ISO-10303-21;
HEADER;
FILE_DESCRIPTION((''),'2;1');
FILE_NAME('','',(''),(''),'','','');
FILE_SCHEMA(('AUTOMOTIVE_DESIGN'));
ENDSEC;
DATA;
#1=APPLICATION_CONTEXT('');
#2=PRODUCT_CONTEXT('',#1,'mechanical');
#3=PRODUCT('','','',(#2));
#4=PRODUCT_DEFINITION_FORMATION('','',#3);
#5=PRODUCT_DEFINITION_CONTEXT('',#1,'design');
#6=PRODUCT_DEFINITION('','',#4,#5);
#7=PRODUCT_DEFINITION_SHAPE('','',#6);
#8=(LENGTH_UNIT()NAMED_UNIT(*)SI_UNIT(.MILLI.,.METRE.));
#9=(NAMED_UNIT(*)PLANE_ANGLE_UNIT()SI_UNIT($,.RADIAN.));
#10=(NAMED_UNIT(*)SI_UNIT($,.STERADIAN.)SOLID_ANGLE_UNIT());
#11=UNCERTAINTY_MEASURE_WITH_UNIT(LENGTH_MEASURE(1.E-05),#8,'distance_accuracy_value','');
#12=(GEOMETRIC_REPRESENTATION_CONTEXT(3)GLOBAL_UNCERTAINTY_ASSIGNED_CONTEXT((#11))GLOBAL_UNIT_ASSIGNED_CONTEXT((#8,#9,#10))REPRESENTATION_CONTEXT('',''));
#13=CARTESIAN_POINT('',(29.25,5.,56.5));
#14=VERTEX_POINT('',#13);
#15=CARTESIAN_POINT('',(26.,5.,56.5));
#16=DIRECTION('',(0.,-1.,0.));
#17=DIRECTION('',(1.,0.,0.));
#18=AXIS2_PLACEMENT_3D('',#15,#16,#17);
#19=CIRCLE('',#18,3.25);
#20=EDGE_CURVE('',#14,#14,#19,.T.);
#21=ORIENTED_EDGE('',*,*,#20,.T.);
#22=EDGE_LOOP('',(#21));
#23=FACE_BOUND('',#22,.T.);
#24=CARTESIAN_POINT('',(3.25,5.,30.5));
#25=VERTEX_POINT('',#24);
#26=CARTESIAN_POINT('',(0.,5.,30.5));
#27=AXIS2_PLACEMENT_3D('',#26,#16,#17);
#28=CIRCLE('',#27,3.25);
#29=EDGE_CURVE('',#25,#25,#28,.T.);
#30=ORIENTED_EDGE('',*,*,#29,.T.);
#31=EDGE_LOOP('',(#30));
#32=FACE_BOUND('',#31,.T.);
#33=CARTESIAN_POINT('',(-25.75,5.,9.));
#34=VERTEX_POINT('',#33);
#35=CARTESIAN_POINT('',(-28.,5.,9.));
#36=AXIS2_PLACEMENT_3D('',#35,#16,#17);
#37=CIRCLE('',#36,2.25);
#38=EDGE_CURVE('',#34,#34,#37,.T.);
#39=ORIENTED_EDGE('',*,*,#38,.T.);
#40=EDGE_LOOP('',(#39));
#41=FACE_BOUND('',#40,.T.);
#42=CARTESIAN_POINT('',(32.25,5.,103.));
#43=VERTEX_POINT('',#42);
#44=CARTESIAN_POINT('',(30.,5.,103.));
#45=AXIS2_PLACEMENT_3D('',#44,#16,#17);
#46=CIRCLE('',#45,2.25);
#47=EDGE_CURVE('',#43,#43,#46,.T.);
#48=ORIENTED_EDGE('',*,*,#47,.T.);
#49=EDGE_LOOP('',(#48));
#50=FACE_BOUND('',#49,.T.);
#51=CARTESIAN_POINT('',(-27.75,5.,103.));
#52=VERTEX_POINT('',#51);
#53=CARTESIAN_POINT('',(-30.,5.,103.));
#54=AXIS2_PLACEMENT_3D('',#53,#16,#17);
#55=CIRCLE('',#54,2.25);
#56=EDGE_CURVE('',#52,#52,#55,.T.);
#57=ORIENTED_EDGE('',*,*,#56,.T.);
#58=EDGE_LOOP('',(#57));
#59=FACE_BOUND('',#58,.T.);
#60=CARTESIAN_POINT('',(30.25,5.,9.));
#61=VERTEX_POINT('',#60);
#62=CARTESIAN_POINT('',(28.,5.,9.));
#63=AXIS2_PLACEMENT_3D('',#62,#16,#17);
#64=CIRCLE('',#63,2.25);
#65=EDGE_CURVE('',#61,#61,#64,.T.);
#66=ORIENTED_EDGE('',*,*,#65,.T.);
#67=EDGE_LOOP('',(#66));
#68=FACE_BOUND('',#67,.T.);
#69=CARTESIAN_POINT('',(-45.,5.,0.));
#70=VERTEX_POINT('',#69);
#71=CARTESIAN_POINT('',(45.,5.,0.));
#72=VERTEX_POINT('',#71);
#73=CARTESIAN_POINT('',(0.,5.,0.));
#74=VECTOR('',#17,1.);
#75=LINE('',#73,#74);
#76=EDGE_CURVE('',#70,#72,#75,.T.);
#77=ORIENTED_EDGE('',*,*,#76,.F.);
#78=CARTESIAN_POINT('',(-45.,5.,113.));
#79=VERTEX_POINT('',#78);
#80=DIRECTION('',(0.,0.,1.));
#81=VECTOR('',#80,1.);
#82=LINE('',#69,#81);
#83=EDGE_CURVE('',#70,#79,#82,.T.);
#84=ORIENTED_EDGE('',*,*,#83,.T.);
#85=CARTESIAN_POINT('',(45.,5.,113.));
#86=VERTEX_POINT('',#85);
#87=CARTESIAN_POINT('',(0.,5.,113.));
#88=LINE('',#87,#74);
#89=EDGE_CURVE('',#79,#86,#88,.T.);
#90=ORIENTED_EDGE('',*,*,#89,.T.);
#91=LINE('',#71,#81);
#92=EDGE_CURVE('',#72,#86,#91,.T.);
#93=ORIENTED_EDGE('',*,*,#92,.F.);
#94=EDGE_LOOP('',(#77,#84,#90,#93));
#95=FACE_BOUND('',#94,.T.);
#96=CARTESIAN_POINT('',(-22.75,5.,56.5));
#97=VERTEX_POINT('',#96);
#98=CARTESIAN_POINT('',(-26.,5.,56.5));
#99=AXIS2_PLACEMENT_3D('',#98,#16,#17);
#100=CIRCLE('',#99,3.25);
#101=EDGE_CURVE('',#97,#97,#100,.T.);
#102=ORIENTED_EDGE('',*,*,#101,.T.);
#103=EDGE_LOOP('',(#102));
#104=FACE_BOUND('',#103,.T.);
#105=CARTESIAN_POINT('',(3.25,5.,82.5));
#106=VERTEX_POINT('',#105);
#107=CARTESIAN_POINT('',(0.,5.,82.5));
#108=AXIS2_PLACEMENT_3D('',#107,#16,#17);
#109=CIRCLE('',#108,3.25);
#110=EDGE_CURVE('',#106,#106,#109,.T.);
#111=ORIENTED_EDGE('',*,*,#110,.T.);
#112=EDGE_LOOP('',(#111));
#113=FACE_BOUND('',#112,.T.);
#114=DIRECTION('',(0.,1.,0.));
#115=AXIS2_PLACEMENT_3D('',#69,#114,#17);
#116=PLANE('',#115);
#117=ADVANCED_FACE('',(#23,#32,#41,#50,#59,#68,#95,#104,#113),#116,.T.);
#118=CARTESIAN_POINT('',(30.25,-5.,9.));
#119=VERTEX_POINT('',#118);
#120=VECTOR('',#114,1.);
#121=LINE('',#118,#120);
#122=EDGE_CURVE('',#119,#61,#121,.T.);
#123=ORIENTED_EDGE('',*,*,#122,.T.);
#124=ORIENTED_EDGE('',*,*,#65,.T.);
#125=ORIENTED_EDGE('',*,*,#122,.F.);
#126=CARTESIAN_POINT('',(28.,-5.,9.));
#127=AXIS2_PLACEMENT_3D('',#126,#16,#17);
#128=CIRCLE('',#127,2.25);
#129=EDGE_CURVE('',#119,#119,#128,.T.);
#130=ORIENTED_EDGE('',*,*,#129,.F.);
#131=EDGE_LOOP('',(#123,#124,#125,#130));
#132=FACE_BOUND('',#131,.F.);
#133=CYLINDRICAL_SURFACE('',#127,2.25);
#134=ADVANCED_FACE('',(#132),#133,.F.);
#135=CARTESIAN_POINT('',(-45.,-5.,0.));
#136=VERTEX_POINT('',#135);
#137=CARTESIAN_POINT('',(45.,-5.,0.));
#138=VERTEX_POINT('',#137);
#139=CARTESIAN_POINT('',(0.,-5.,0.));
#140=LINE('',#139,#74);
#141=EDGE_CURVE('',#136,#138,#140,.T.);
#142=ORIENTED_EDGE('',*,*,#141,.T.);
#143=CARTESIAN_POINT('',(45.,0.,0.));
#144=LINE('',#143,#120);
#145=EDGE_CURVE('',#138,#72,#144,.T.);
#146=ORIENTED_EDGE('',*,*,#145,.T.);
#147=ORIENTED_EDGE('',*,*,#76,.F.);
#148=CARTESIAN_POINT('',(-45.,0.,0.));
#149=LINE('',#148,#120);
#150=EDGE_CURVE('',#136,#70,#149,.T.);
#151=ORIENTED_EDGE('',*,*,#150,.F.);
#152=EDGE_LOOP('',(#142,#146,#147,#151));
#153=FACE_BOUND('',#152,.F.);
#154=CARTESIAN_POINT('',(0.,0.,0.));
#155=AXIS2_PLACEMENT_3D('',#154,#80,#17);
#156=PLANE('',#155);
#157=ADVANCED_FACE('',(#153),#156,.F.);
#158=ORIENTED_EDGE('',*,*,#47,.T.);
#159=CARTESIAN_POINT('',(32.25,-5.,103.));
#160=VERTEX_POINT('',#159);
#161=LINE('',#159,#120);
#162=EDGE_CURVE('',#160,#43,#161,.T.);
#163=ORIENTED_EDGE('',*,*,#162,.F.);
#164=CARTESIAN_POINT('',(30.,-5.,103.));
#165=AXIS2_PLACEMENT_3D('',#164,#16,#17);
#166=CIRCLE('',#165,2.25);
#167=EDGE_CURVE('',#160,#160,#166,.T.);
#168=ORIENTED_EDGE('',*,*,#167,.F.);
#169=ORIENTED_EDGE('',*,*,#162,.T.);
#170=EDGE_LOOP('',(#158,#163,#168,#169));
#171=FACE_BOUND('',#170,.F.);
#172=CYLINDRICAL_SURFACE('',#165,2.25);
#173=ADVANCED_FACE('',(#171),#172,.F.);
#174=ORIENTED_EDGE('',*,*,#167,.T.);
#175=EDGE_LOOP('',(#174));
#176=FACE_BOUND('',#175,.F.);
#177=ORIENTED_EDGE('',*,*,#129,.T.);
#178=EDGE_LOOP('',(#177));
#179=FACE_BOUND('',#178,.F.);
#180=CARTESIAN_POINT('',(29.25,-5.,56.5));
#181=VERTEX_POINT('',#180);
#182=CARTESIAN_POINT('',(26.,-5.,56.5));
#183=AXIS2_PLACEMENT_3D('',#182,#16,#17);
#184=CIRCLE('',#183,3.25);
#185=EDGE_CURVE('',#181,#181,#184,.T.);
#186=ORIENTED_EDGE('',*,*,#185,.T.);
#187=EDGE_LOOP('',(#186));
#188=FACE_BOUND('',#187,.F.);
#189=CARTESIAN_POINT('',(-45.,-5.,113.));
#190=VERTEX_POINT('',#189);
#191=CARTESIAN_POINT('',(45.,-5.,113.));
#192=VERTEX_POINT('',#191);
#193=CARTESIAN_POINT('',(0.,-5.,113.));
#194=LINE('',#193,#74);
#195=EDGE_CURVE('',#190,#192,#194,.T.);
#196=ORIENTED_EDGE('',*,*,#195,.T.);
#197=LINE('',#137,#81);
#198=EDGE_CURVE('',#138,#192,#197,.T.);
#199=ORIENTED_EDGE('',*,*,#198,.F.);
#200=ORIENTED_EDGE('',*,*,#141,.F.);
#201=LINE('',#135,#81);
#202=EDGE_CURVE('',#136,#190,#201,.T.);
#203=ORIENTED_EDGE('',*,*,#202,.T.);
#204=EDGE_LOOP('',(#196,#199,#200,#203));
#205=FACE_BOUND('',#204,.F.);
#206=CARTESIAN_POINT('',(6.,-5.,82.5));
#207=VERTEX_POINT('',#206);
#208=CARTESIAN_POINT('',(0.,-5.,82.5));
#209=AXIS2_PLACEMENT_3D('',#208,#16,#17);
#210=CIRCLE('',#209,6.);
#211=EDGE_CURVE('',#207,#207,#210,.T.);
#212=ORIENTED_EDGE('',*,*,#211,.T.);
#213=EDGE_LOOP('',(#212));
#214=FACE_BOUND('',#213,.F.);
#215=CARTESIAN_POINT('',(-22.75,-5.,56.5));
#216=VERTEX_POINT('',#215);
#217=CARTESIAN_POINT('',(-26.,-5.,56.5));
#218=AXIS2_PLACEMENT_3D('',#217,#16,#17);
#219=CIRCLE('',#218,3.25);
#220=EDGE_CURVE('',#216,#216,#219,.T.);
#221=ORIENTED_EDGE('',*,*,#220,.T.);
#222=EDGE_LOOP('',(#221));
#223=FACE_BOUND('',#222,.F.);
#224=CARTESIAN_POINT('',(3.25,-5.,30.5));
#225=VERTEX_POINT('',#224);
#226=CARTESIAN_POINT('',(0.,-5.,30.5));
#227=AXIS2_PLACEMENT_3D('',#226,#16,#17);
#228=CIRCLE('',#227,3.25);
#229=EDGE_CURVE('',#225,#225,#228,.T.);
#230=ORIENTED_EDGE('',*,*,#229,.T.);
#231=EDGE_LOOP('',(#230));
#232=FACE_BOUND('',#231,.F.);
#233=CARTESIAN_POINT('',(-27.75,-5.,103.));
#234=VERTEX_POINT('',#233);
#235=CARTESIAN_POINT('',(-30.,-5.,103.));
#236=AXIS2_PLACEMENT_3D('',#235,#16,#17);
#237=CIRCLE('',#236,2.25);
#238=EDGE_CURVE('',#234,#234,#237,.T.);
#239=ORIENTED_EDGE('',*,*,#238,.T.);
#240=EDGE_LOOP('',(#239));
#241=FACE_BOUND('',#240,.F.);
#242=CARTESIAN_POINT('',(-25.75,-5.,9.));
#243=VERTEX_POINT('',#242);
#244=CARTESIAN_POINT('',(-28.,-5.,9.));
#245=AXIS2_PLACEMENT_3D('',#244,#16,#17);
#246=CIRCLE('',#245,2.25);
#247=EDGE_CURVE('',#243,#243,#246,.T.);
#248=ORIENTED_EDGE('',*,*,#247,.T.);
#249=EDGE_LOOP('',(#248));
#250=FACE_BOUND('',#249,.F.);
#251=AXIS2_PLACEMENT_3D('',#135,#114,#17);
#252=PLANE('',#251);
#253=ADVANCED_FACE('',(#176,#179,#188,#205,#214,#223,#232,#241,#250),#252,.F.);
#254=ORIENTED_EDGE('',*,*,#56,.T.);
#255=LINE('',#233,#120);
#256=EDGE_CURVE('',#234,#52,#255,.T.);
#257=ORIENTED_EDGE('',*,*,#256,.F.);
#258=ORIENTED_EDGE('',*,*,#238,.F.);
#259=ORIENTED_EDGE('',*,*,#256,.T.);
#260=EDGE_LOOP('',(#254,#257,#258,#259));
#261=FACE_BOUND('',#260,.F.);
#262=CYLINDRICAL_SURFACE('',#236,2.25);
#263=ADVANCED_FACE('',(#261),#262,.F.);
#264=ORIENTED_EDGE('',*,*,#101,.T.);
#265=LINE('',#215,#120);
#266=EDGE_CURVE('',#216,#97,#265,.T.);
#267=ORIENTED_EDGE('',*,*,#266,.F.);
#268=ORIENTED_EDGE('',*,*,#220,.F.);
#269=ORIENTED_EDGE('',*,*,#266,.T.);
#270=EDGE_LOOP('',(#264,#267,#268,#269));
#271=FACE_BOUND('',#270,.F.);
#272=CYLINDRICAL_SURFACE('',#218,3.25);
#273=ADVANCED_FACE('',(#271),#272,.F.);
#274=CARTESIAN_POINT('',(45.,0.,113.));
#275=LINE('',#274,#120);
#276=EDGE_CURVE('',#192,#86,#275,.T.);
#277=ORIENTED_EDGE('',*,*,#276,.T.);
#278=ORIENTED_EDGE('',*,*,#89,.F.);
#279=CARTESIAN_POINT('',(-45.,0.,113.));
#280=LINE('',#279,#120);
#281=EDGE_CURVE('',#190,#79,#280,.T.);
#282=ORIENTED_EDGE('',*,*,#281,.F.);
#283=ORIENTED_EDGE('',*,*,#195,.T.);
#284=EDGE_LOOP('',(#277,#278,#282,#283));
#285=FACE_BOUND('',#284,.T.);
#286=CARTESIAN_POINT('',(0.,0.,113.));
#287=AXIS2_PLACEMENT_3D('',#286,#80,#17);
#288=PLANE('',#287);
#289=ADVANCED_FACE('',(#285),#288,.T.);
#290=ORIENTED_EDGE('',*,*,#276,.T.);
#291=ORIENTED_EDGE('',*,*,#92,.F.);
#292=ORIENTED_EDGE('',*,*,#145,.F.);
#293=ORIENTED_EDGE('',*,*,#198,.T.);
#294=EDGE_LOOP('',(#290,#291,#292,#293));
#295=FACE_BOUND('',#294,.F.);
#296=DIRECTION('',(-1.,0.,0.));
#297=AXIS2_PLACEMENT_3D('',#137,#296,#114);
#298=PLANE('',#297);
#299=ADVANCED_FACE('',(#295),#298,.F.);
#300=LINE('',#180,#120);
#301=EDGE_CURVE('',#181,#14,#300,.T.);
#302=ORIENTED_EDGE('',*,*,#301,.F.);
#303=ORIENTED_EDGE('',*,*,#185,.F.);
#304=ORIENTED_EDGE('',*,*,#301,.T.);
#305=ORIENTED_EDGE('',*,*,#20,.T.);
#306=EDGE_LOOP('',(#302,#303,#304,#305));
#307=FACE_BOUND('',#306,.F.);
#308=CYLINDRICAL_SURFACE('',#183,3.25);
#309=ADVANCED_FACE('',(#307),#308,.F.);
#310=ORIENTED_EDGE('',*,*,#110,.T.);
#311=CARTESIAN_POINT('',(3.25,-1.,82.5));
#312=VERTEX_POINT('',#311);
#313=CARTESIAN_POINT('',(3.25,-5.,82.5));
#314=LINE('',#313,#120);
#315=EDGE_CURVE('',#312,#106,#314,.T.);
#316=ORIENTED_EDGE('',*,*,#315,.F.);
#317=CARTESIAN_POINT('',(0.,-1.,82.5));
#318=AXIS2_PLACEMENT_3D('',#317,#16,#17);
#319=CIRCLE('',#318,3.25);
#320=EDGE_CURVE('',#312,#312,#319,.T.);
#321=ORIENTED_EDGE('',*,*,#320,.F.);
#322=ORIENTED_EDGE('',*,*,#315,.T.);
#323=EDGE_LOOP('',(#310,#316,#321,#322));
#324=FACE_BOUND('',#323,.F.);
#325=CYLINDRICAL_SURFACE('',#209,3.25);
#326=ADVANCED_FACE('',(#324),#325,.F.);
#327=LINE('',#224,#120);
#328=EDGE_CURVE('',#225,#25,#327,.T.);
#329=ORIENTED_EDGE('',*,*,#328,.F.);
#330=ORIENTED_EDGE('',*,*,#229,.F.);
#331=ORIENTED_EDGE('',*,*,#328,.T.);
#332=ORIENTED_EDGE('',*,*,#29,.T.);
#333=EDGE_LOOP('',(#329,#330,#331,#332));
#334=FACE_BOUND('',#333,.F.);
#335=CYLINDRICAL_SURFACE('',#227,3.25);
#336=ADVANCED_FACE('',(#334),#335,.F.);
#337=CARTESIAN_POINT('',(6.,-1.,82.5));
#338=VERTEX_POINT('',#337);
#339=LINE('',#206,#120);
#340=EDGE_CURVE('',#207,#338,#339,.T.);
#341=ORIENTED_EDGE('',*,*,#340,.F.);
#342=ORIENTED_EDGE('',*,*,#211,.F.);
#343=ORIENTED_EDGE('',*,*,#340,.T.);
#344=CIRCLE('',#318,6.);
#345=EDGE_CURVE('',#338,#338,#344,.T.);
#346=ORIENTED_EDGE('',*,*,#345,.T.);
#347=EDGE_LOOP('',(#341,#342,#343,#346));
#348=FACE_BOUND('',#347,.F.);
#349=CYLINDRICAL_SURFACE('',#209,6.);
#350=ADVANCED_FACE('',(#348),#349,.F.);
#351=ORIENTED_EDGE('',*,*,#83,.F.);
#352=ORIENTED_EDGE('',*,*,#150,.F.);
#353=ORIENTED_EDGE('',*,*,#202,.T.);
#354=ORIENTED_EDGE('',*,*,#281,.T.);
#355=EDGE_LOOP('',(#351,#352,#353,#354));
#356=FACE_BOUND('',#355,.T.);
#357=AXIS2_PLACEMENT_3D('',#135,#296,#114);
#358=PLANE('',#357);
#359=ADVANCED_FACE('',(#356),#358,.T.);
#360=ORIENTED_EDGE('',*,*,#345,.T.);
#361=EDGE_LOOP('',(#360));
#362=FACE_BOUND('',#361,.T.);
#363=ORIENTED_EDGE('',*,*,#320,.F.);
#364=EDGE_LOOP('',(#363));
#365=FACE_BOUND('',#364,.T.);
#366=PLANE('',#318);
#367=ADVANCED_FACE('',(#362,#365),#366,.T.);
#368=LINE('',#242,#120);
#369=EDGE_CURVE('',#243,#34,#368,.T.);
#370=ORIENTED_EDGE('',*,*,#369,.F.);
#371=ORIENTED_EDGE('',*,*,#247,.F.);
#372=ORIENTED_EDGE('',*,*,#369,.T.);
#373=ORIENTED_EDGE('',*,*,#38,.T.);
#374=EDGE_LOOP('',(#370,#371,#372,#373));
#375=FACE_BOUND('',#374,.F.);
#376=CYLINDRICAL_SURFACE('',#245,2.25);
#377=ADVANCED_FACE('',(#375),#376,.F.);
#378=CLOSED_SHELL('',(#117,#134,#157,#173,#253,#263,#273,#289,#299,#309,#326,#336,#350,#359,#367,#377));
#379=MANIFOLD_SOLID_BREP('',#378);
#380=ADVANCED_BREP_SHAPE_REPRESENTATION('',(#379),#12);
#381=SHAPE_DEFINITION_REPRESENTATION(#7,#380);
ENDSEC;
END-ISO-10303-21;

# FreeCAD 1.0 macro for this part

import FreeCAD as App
import Part
import Sketcher

doc = App.newDocument("Part")
params = doc.addObject("Spreadsheet::Sheet", "Params")
for row, (alias, value) in enumerate([
    ("sketch1_width", "90 mm"),
    ("sketch1_height", "10 mm"),
    ("pad1_length", "113 mm"),
    ("sketch2_diameter", "4.5 mm"),
    ("sketch2_diameter2", "6.5 mm"),
    ("sketch3_diameter", "12 mm"),
    ("pocket2_length", "4 mm"),
], start=1):
    params.set(f"A{row}", alias)
    params.set(f"B{row}", "=" + value)
    params.setAlias(f"B{row}", alias)

body = doc.addObject("PartDesign::Body", "Body")

# Sketch on XY plane
sketch1 = doc.addObject("Sketcher::SketchObject", "Sketch")
body.addObject(sketch1)
sketch1.AttachmentSupport = (doc.XY_Plane, [""])
sketch1.MapMode = "FlatFace"
sketch1.addGeometry([
    Part.LineSegment(App.Vector(-45, 5, 0), App.Vector(-45, -5, 0)),
    Part.LineSegment(App.Vector(-45, -5, 0), App.Vector(45, -5, 0)),
    Part.LineSegment(App.Vector(45, -5, 0), App.Vector(45, 5, 0)),
    Part.LineSegment(App.Vector(45, 5, 0), App.Vector(-45, 5, 0)),
], False)
sketch1.addConstraint([
    Sketcher.Constraint("Coincident", 0, 2, 1, 1),
    Sketcher.Constraint("Coincident", 1, 2, 2, 1),
    Sketcher.Constraint("Coincident", 2, 2, 3, 1),
    Sketcher.Constraint("Coincident", 3, 2, 0, 1),
    Sketcher.Constraint("Vertical", 0),
    Sketcher.Constraint("Horizontal", 1),
    Sketcher.Constraint("Vertical", 2),
    Sketcher.Constraint("Horizontal", 3),
    Sketcher.Constraint("Symmetric", 0, 2, 2, 2, -1, 1),
    Sketcher.Constraint("DistanceX", 1, 1, 1, 2, 90.0),
    Sketcher.Constraint("DistanceY", 0, 2, 0, 1, 10.0),
])
sketch1.setExpression("Constraints[9]", "Params.sketch1_width")
sketch1.setExpression("Constraints[10]", "Params.sketch1_height")
pad1 = doc.addObject("PartDesign::Pad", "Pad")
body.addObject(pad1)
pad1.Profile = sketch1
pad1.setExpression("Length", "Params.pad1_length")

# Sketch on XZ plane
sketch2 = doc.addObject("Sketcher::SketchObject", "Sketch001")
body.addObject(sketch2)
sketch2.AttachmentSupport = (doc.XZ_Plane, [""])
sketch2.MapMode = "FlatFace"
sketch2.AttachmentOffset = App.Placement(App.Vector(0, 0, 5), App.Rotation())
sketch2.addGeometry([
    Part.Circle(App.Vector(-30, 103, 0), App.Vector(0, 0, 1), 2.25),  # 0
    Part.Circle(App.Vector(30, 103, 0), App.Vector(0, 0, 1), 2.25),  # 1
    Part.Circle(App.Vector(28, 9, 0), App.Vector(0, 0, 1), 2.25),  # 2
    Part.Circle(App.Vector(-28, 9, 0), App.Vector(0, 0, 1), 2.25),  # 3
    Part.Circle(App.Vector(0, 82.5, 0), App.Vector(0, 0, 1), 3.25),  # 4
    Part.Circle(App.Vector(0, 30.5, 0), App.Vector(0, 0, 1), 3.25),  # 5
    Part.Circle(App.Vector(26, 56.5, 0), App.Vector(0, 0, 1), 3.25),  # 6
    Part.Circle(App.Vector(-26, 56.5, 0), App.Vector(0, 0, 1), 3.25),  # 7
], False)
sketch2.addConstraint([
    Sketcher.Constraint("Equal", 0, 1),
    Sketcher.Constraint("Equal", 1, 2),
    Sketcher.Constraint("Equal", 2, 3),
    Sketcher.Constraint("Equal", 4, 5),
    Sketcher.Constraint("Equal", 5, 6),
    Sketcher.Constraint("Equal", 6, 7),
    Sketcher.Constraint("Symmetric", 0, 3, 1, 3, -2),
    Sketcher.Constraint("Symmetric", 2, 3, 3, 3, -2),
    Sketcher.Constraint("Symmetric", 6, 3, 7, 3, -2),
    Sketcher.Constraint("PointOnObject", 4, 3, -2),
    Sketcher.Constraint("PointOnObject", 5, 3, -2),
    Sketcher.Constraint("Diameter", 0, 4.5),
    Sketcher.Constraint("Diameter", 4, 6.5),
    Sketcher.Constraint("DistanceX", 0, 3, -1, 1, 30.0),
    Sketcher.Constraint("DistanceY", -1, 1, 0, 3, 103.0),
    Sketcher.Constraint("DistanceX", -1, 1, 2, 3, 28.0),
    Sketcher.Constraint("DistanceY", -1, 1, 2, 3, 9.0),
    Sketcher.Constraint("DistanceX", -1, 1, 6, 3, 26.0),
    Sketcher.Constraint("DistanceY", 5, 3, 4, 3, 52.0),
    Sketcher.Constraint("DistanceY", 6, 3, 4, 3, 26.0),
    Sketcher.Constraint("DistanceY", -1, 1, 4, 3, 82.5),
])
sketch2.setExpression("Constraints[11]", "Params.sketch2_diameter")
sketch2.setExpression("Constraints[12]", "Params.sketch2_diameter2")
pocket1 = doc.addObject("PartDesign::Pocket", "Pocket")
body.addObject(pocket1)
pocket1.Profile = sketch2
pocket1.Type = "ThroughAll"

# Sketch on XZ plane
sketch3 = doc.addObject("Sketcher::SketchObject", "Sketch002")
body.addObject(sketch3)
sketch3.AttachmentSupport = (doc.XZ_Plane, [""])
sketch3.MapMode = "FlatFace"
sketch3.AttachmentOffset = App.Placement(App.Vector(0, 0, 5), App.Rotation())
sketch3.addGeometry(Part.Circle(App.Vector(0, 82.5, 0), App.Vector(0, 0, 1), 6), False)
sketch3.addConstraint([
    Sketcher.Constraint("PointOnObject", 0, 3, -2),
    Sketcher.Constraint("Diameter", 0, 12.0),
    Sketcher.Constraint("DistanceY", -1, 1, 0, 3, 82.5),
])
sketch3.setExpression("Constraints[1]", "Params.sketch3_diameter")
pocket2 = doc.addObject("PartDesign::Pocket", "Pocket001")
body.addObject(pocket2)
pocket2.Profile = sketch3
pocket2.setExpression("Length", "Params.pocket2_length")

doc.recompute()
